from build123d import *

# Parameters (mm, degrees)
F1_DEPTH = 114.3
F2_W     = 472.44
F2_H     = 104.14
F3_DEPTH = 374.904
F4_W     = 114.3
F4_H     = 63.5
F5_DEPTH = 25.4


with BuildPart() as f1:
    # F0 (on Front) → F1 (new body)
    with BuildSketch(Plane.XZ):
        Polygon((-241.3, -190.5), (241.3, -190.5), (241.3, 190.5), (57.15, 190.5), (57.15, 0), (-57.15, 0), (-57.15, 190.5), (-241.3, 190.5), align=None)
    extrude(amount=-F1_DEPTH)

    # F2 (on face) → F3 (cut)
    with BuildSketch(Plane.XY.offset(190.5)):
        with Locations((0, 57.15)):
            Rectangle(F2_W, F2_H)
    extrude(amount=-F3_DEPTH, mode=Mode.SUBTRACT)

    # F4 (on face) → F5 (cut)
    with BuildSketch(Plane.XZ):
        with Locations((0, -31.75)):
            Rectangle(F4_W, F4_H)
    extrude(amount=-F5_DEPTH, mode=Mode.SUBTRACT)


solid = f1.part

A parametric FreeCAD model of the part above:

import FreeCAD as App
import Part
import Sketcher
Q = App.Units.Quantity


def add_polygon(sketch, points):
    """Adds a closed chain of lines whose ends are joined by coincident constraints."""
    first, n = sketch.GeometryCount, len(points)
    for a, b in zip(points, points[1:] + points[:1]):
        sketch.addGeometry(Part.LineSegment(App.Vector(*a, 0), App.Vector(*b, 0)), False)
    for i in range(n):
        sketch.addConstraint(Sketcher.Constraint("Coincident", first + i, 2, first + (i + 1) % n, 1))

doc = App.newDocument("Part")
body = doc.addObject("PartDesign::Body", "Body")

# Sketch on XZ plane
sketch1 = body.newObject("Sketcher::SketchObject", "Sketch")
sketch1.AttachmentSupport = (doc.getObject("XZ_Plane"), [""])
sketch1.MapMode = "FlatFace"
add_polygon(sketch1, [(-241, -190), (241, -190), (241, 190), (57, 190), (57, 0), (-57, 0), (-57, 190), (-241, 190)])  # lines 0-7
sketch1.addConstraint([
    Sketcher.Constraint("Horizontal", 0),
    Sketcher.Constraint("Vertical", 1),
    Sketcher.Constraint("Horizontal", 2),
    Sketcher.Constraint("Vertical", 3),
    Sketcher.Constraint("Horizontal", 4),
    Sketcher.Constraint("Vertical", 5),
    Sketcher.Constraint("Horizontal", 6),
    Sketcher.Constraint("Vertical", 7),
    Sketcher.Constraint("Symmetric", 3, 2, 4, 2, -1, 1),
    Sketcher.Constraint("Symmetric", 0, 2, 6, 2, -1, 1),
    Sketcher.Constraint("Horizontal", 2, 2, 5, 2),
    Sketcher.Constraint("DistanceX", 0, 1, 0, 2, Q("19 in")),
    Sketcher.Constraint("DistanceY", 1, 1, 1, 2, Q("15 in")),
    Sketcher.Constraint("DistanceX", 4, 2, 4, 1, Q("4.5 in")),
])
pad1 = body.newObject("PartDesign::Pad", "Pad")
pad1.Profile = sketch1
pad1.Length = Q("4.5 in")
pad1.Reversed = True

# Sketch on XY plane
sketch2 = body.newObject("Sketcher::SketchObject", "Sketch001")
sketch2.AttachmentSupport = (doc.getObject("XY_Plane"), [""])
sketch2.MapMode = "FlatFace"
sketch2.AttachmentOffset = App.Placement(App.Vector(0, 0, 7.5 * 25.4), App.Rotation())
add_polygon(sketch2, [(-236, 109), (-236, 5), (236, 5), (236, 109)])  # lines 0-3
sketch2.addConstraint([
    Sketcher.Constraint("Vertical", 0),
    Sketcher.Constraint("Horizontal", 1),
    Sketcher.Constraint("Vertical", 2),
    Sketcher.Constraint("Horizontal", 3),
    Sketcher.Constraint("DistanceX", 1, 1, 1, 2, Q("18.6 in")),
    Sketcher.Constraint("DistanceY", 0, 2, 0, 1, Q("4.1 in")),
    Sketcher.Constraint("DistanceX", 0, 2, -1, 1, Q("9.3 in")),
    Sketcher.Constraint("DistanceY", -1, 1, 0, 2, Q("0.2 in")),
])
pocket1 = body.newObject("PartDesign::Pocket", "Pocket")
pocket1.Profile = sketch2
pocket1.Length = Q("14.76 in")

# Sketch on XZ plane
sketch3 = body.newObject("Sketcher::SketchObject", "Sketch002")
sketch3.AttachmentSupport = (doc.getObject("XZ_Plane"), [""])
sketch3.MapMode = "FlatFace"
add_polygon(sketch3, [(-57, 0), (-57, -64), (57, -64), (57, 0)])  # lines 0-3
sketch3.addConstraint([
    Sketcher.Constraint("Vertical", 0),
    Sketcher.Constraint("Horizontal", 1),
    Sketcher.Constraint("Vertical", 2),
    Sketcher.Constraint("Horizontal", 3),
    Sketcher.Constraint("Symmetric", 2, 2, 3, 2, -1, 1),
    Sketcher.Constraint("DistanceX", 1, 1, 1, 2, Q("4.5 in")),
    Sketcher.Constraint("DistanceY", 0, 2, 0, 1, Q("2.5 in")),
])
pocket2 = body.newObject("PartDesign::Pocket", "Pocket001")
pocket2.Profile = sketch3
pocket2.Length = Q("1 in")

doc.recompute()
